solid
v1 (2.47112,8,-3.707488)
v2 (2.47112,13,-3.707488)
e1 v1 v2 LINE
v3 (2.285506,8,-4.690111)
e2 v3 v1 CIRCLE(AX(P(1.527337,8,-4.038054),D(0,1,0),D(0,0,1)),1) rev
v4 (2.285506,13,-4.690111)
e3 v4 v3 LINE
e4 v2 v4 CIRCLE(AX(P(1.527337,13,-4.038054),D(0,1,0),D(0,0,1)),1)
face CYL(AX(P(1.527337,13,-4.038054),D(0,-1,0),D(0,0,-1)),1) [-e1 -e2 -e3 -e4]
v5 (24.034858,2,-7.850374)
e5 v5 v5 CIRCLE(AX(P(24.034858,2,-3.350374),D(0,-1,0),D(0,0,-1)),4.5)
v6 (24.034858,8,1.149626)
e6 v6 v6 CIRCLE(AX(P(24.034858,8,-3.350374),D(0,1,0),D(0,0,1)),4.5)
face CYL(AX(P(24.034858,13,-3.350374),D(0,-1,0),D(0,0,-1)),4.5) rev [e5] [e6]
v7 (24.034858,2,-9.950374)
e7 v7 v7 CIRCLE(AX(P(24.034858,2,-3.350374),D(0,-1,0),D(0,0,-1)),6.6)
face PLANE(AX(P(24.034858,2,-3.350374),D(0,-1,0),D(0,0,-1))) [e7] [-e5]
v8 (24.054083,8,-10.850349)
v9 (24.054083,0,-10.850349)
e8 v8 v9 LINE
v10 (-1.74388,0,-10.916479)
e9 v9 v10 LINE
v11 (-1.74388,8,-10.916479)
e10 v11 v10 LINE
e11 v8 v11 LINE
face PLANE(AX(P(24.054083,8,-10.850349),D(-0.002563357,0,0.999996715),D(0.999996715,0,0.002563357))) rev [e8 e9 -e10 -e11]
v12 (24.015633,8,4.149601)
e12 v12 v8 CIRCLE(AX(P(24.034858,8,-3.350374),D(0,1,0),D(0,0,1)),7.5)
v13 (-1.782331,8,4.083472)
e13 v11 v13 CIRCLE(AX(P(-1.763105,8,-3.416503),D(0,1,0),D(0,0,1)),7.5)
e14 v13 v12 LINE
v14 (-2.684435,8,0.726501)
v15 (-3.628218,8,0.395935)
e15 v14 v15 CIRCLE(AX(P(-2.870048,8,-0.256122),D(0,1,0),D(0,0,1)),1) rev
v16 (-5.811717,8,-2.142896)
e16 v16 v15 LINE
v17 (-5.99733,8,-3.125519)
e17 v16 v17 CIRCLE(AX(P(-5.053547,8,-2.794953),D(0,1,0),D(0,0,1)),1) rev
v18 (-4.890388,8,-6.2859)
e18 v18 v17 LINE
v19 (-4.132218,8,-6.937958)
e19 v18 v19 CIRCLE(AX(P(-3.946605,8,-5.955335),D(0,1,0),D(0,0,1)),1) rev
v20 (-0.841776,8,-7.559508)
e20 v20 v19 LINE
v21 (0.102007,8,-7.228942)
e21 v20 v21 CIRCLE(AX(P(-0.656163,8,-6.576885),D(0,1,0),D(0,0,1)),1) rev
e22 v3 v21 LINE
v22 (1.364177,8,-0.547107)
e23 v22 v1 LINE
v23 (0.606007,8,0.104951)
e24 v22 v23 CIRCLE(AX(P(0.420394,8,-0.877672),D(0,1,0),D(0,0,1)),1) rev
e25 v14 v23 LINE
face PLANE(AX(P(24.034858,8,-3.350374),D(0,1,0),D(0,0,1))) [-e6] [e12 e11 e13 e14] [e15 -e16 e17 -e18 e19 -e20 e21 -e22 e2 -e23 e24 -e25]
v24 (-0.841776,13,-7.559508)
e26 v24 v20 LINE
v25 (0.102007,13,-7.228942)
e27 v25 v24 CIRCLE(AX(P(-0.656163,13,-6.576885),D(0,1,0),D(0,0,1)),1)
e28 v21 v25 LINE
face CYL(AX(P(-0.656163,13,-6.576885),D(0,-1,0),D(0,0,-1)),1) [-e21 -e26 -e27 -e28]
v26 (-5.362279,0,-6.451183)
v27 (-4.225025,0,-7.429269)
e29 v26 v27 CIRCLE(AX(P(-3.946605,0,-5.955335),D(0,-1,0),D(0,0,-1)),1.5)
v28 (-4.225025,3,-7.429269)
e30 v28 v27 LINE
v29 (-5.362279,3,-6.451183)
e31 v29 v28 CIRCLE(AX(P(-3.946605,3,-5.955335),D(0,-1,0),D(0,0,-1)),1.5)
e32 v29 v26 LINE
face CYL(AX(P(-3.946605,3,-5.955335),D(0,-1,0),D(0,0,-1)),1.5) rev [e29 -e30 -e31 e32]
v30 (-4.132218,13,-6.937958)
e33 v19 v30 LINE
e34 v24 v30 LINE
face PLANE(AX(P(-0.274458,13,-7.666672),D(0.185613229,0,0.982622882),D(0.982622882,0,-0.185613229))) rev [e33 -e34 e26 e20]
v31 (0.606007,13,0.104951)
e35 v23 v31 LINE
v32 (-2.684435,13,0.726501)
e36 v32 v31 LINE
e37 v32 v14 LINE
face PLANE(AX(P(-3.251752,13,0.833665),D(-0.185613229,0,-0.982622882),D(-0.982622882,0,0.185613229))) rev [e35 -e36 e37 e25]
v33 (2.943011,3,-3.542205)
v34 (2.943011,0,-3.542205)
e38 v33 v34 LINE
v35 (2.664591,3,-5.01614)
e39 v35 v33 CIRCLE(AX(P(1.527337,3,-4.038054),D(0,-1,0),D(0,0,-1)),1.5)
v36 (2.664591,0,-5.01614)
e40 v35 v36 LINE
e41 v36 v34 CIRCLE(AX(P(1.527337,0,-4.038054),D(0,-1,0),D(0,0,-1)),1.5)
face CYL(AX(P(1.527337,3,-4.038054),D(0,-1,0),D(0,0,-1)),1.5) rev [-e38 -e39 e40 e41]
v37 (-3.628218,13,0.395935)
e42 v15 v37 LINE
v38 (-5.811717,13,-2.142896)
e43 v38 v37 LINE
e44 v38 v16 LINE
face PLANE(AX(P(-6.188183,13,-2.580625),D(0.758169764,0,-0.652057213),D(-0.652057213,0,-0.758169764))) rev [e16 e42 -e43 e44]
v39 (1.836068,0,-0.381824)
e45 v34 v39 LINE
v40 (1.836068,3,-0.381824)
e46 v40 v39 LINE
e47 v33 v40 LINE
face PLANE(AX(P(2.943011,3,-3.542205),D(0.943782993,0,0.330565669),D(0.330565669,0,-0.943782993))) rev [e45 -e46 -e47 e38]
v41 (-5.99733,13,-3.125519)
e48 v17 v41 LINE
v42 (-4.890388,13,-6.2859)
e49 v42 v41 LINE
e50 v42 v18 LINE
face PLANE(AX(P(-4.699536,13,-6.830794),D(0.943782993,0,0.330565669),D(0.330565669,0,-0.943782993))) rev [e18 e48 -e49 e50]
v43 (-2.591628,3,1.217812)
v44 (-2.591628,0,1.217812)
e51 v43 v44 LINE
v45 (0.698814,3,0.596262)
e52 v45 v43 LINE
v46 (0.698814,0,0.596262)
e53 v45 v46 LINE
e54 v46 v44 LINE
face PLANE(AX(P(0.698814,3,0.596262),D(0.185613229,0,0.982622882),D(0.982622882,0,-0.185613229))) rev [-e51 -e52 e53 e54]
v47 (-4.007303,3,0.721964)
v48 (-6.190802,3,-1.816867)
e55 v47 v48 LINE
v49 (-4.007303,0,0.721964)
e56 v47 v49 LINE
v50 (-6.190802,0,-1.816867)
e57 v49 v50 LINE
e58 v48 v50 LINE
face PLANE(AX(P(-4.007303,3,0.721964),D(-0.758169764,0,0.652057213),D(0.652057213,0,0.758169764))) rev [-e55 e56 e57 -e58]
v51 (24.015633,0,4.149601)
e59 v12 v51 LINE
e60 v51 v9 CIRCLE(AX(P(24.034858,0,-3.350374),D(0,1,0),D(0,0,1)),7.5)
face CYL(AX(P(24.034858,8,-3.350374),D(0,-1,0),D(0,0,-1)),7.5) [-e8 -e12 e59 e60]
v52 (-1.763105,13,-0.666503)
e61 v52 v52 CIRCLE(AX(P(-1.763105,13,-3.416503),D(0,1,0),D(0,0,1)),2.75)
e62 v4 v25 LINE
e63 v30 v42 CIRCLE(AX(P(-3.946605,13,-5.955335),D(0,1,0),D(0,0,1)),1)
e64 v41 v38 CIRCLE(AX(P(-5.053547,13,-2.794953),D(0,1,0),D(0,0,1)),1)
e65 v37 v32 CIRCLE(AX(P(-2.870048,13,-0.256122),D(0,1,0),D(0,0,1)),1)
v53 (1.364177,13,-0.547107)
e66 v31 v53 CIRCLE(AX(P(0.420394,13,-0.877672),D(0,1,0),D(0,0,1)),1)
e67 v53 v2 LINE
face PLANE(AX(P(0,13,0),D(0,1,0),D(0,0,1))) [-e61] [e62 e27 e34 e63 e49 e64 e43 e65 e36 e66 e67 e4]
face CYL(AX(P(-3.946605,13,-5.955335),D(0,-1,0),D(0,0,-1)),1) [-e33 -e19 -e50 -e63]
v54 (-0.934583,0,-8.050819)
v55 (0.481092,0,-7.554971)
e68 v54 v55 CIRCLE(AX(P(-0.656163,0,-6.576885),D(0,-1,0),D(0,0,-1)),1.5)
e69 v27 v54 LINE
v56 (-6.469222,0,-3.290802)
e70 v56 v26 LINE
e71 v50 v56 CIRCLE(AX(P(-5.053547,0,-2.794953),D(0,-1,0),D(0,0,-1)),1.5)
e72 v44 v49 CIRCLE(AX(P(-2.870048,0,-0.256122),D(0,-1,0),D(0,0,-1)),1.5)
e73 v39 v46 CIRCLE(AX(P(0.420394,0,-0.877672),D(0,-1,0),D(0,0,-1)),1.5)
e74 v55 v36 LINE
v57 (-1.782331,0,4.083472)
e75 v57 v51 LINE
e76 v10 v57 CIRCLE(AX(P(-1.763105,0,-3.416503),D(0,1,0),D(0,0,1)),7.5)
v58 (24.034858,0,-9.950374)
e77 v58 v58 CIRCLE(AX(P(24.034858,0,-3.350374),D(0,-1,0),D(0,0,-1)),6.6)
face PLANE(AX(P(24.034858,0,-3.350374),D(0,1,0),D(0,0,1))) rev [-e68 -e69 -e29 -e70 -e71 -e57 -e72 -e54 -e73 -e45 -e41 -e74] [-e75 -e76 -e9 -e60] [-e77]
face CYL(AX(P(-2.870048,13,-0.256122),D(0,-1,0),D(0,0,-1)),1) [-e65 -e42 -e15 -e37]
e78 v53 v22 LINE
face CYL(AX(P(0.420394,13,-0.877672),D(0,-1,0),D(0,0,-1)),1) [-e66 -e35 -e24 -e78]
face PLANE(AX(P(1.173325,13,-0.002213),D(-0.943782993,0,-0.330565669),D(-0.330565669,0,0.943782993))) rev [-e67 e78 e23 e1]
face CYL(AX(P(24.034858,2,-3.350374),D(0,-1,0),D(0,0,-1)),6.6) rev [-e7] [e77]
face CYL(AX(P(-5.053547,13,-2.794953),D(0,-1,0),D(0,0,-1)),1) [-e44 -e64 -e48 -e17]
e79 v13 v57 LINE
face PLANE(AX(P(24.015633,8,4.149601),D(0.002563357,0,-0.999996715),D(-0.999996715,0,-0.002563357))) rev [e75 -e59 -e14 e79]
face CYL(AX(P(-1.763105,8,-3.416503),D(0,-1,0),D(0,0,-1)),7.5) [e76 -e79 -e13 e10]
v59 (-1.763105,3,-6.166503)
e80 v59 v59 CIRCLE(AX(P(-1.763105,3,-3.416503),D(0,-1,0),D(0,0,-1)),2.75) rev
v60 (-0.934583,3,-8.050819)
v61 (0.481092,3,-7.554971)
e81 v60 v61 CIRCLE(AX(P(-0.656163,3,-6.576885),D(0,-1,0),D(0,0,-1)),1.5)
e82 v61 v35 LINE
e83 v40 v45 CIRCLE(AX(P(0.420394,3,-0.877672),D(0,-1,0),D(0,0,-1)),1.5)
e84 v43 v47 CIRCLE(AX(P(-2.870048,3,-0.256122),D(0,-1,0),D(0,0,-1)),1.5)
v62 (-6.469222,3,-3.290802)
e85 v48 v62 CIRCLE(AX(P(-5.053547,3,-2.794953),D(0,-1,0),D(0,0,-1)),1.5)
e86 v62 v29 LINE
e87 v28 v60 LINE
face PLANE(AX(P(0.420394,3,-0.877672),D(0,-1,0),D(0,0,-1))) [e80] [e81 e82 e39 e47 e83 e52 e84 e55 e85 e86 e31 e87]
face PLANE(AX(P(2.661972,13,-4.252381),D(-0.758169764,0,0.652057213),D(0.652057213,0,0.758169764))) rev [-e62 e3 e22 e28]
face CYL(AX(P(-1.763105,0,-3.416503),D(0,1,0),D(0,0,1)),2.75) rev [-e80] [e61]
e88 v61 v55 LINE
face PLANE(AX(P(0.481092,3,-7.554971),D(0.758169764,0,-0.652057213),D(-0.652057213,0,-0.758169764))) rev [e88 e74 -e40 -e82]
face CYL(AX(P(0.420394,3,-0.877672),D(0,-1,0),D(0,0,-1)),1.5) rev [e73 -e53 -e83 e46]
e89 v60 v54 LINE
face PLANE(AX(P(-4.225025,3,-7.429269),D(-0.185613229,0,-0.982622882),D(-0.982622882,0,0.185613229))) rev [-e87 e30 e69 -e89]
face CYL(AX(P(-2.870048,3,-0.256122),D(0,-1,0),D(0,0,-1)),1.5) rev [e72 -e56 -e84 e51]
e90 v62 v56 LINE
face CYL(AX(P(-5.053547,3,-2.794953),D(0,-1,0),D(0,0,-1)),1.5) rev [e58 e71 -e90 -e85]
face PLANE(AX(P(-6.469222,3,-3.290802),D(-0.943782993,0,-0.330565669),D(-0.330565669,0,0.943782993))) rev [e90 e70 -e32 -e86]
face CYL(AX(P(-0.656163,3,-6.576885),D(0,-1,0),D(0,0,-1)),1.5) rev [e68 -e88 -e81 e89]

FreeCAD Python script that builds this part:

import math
import FreeCAD as App
import Part
import Sketcher

V = App.Vector


def edges_at(feature, points):
    """Names of the edges that pass closest to the given points."""
    edges = feature.Shape.Edges
    near = lambda p: min(range(len(edges)), key=lambda i: edges[i].distToShape(Part.Vertex(*p))[0])
    return sorted({f"Edge{near(p) + 1}" for p in points})

doc = App.newDocument("Part")
body = doc.addObject("PartDesign::Body", "Body")

# Sketch on XZ plane
sketch1 = doc.addObject("Sketcher::SketchObject", "Sketch")
body.addObject(sketch1)
sketch1.AttachmentSupport = (doc.XZ_Plane, [""])
sketch1.MapMode = "FlatFace"
sketch1.addGeometry([
    Part.LineSegment(V(-1.782331, 4.083472, 0), V(24.015633, 4.149601, 0)),
    Part.ArcOfCircle(Part.Circle(V(24.034858, -3.350374, 0), V(0, 0, 1), 7.5), math.radians(-89.85313), math.radians(90.14687)),
    Part.LineSegment(V(24.054083, -10.850349, 0), V(-1.74388, -10.916479, 0)),
    Part.ArcOfCircle(Part.Circle(V(-1.763105, -3.416503, 0), V(0, 0, 1), 7.5), math.radians(90.14687), math.radians(270.14687)),
], False)
sketch1.addConstraint([
    Sketcher.Constraint("Tangent", 0, 2, 1, 2),
    Sketcher.Constraint("Tangent", 1, 1, 2, 1),
    Sketcher.Constraint("Tangent", 2, 2, 3, 2),
    Sketcher.Constraint("Tangent", 3, 1, 0, 1),
    Sketcher.Constraint("Equal", 1, 3),
    Sketcher.Constraint("Radius", 1, 7.5),
    Sketcher.Constraint("DistanceY", -1, 1, 0, 2, 4.149601),
    Sketcher.Constraint("DistanceX", 2, 2, -1, 1, 1.74388),
    Sketcher.Constraint("DistanceY", 2, 2, -1, 1, 10.916479),
    Sketcher.Constraint("DistanceX", 3, 3, 0, 2, 25.778738),
])
pad1 = doc.addObject("PartDesign::Pad", "Pad")
body.addObject(pad1)
pad1.Profile = sketch1
pad1.Length = 8
pad1.Reversed = True

# Sketch on XZ plane
sketch2 = doc.addObject("Sketcher::SketchObject", "Sketch001")
body.addObject(sketch2)
sketch2.AttachmentSupport = (doc.XZ_Plane, [""])
sketch2.MapMode = "FlatFace"
sketch2.AttachmentOffset = App.Placement(V(0, 0, -8), App.Rotation())
sketch2.addGeometry([
    Part.LineSegment(V(-3.251752, 0.833665, 0), V(1.173325, -0.002213, 0)),  # 0
    Part.LineSegment(V(1.173325, -0.002213, 0), V(2.661972, -4.252381, 0)),  # 1
    Part.LineSegment(V(2.661972, -4.252381, 0), V(-0.274458, -7.666672, 0)),  # 2
    Part.LineSegment(V(-0.274458, -7.666672, 0), V(-4.699536, -6.830794, 0)),  # 3
    Part.LineSegment(V(-4.699536, -6.830794, 0), V(-6.188183, -2.580625, 0)),  # 4
    Part.LineSegment(V(-6.188183, -2.580625, 0), V(-3.251752, 0.833665, 0)),  # 5
], False)
sketch2.addConstraint([
    Sketcher.Constraint("Coincident", 0, 2, 1, 1),
    Sketcher.Constraint("Coincident", 1, 2, 2, 1),
    Sketcher.Constraint("Coincident", 2, 2, 3, 1),
    Sketcher.Constraint("Coincident", 3, 2, 4, 1),
    Sketcher.Constraint("Coincident", 4, 2, 5, 1),
    Sketcher.Constraint("Coincident", 5, 2, 0, 1),
    Sketcher.Constraint("Parallel", 0, 3),
    Sketcher.Constraint("Parallel", 1, 4),
    Sketcher.Constraint("Parallel", 2, 5),
    Sketcher.Constraint("Equal", 0, 1),
    Sketcher.Constraint("Equal", 1, 2),
    Sketcher.Constraint("Equal", 2, 3),
    Sketcher.Constraint("DistanceX", -1, 1, 1, 2, 2.661972),
    Sketcher.Constraint("DistanceY", 1, 2, -1, 1, 4.252381),
    Sketcher.Constraint("DistanceX", 2, 2, -1, 1, 0.274458),
    Sketcher.Constraint("DistanceY", 2, 2, -1, 1, 7.666672),
    Sketcher.Constraint("DistanceY", 1, 2, 0, 2, 4.250168),
    Sketcher.Constraint("DistanceY", 2, 2, 3, 2, 0.835878),
])
pad2 = doc.addObject("PartDesign::Pad", "Pad001")
body.addObject(pad2)
pad2.Profile = sketch2
pad2.Length = 5
pad2.Reversed = True

# Sketch on XZ plane
sketch3 = doc.addObject("Sketcher::SketchObject", "Sketch002")
body.addObject(sketch3)
sketch3.AttachmentSupport = (doc.XZ_Plane, [""])
sketch3.MapMode = "FlatFace"
sketch3.AttachmentOffset = App.Placement(V(0, 0, -13), App.Rotation())
sketch3.addGeometry(Part.Circle(V(-1.763105, -3.416503, 0), V(0, 0, 1), 2.75), False)
sketch3.addConstraint([
    Sketcher.Constraint("Diameter", 0, 5.5),
    Sketcher.Constraint("DistanceX", 0, 3, -1, 1, 1.763105),
    Sketcher.Constraint("DistanceY", 0, 3, -1, 1, 3.416503),
])
pocket1 = doc.addObject("PartDesign::Pocket", "Pocket")
body.addObject(pocket1)
pocket1.Profile = sketch3
pocket1.Type = "ThroughAll"
pocket1.Reversed = True
doc.recompute()

fillet = doc.addObject("PartDesign::Fillet", "Fillet")
body.addObject(fillet)
fillet.Base = (pocket1, edges_at(pocket1, [
    (-6.188, 10.5, -2.581),
    (-3.252, 10.5, 0.834),
    (1.173, 10.5, -0.002),
    (2.662, 10.5, -4.252),
    (-0.274, 10.5, -7.667),
    (-4.7, 10.5, -6.831),
]))
fillet.Radius = 1

# Sketch on XZ plane
sketch4 = doc.addObject("Sketcher::SketchObject", "Sketch003")
body.addObject(sketch4)
sketch4.AttachmentSupport = (doc.XZ_Plane, [""])
sketch4.MapMode = "FlatFace"
sketch4.addGeometry([
    Part.LineSegment(V(2.943011, -3.542205, 0), V(1.836068, -0.381824, 0)),  # 0
    Part.ArcOfCircle(Part.Circle(V(0.420394, -0.877672, 0), V(0, 0, 1), 1.5), math.radians(19.303113), math.radians(79.303113)),  # 1
    Part.LineSegment(V(0.698814, 0.596262, 0), V(-2.591628, 1.217812, 0)),  # 2
    Part.ArcOfCircle(Part.Circle(V(-2.870048, -0.256122, 0), V(0, 0, 1), 1.5), math.radians(79.303113), math.radians(139.303113)),  # 3
    Part.LineSegment(V(-4.007303, 0.721964, 0), V(-6.190802, -1.816867, 0)),  # 4
    Part.ArcOfCircle(Part.Circle(V(-5.053547, -2.794953, 0), V(0, 0, 1), 1.5), math.radians(139.303113), math.radians(199.303113)),  # 5
    Part.LineSegment(V(-6.469222, -3.290802, 0), V(-5.362279, -6.451183, 0)),  # 6
    Part.ArcOfCircle(Part.Circle(V(-3.946605, -5.955335, 0), V(0, 0, 1), 1.5), math.radians(-160.696887), math.radians(-100.696887)),  # 7
    Part.LineSegment(V(-4.225025, -7.429269, 0), V(-0.934583, -8.050819, 0)),  # 8
    Part.ArcOfCircle(Part.Circle(V(-0.656163, -6.576885, 0), V(0, 0, 1), 1.5), math.radians(-100.696887), math.radians(-40.696887)),  # 9
    Part.LineSegment(V(0.481092, -7.554971, 0), V(2.664591, -5.01614, 0)),  # 10
    Part.ArcOfCircle(Part.Circle(V(1.527337, -4.038054, 0), V(0, 0, 1), 1.5), math.radians(-40.696887), math.radians(19.303113)),  # 11
], False)
sketch4.addConstraint([
    Sketcher.Constraint("Tangent", 0, 2, 1, 1),
    Sketcher.Constraint("Tangent", 1, 2, 2, 1),
    Sketcher.Constraint("Tangent", 2, 2, 3, 1),
    Sketcher.Constraint("Tangent", 3, 2, 4, 1),
    Sketcher.Constraint("Tangent", 4, 2, 5, 1),
    Sketcher.Constraint("Tangent", 5, 2, 6, 1),
    Sketcher.Constraint("Tangent", 6, 2, 7, 1),
    Sketcher.Constraint("Tangent", 7, 2, 8, 1),
    Sketcher.Constraint("Tangent", 8, 2, 9, 1),
    Sketcher.Constraint("Tangent", 9, 2, 10, 1),
    Sketcher.Constraint("Tangent", 10, 2, 11, 1),
    Sketcher.Constraint("Tangent", 11, 2, 0, 1),
    Sketcher.Constraint("Equal", 1, 3),
    Sketcher.Constraint("Equal", 3, 5),
    Sketcher.Constraint("Equal", 5, 7),
    Sketcher.Constraint("Equal", 7, 9),
    Sketcher.Constraint("Equal", 9, 11),
    Sketcher.Constraint("Parallel", 0, 6),
    Sketcher.Constraint("Parallel", 2, 8),
    Sketcher.Constraint("Parallel", 4, 10),
    Sketcher.Constraint("Equal", 0, 2),
    Sketcher.Constraint("Equal", 2, 4),
    Sketcher.Constraint("Equal", 4, 6),
    Sketcher.Constraint("Radius", 1, 1.5),
    Sketcher.Constraint("DistanceX", 7, 3, 1, 3, 4.366999),
    Sketcher.Constraint("DistanceY", 5, 2, -1, 1, 3.290802),
    Sketcher.Constraint("DistanceX", 5, 3, 3, 3, 2.183499),
    Sketcher.Constraint("DistanceY", 11, 3, 5, 3, 1.243101),
    Sketcher.Constraint("DistanceY", 0, 2, 3, 3, 0.125702),
    Sketcher.Constraint("DistanceX", 3, 3, -1, 1, 2.870048),
])
pocket2 = doc.addObject("PartDesign::Pocket", "Pocket001")
body.addObject(pocket2)
pocket2.Profile = sketch4
pocket2.Length = 3

# Sketch on XZ plane
sketch5 = doc.addObject("Sketcher::SketchObject", "Sketch004")
body.addObject(sketch5)
sketch5.AttachmentSupport = (doc.XZ_Plane, [""])
sketch5.MapMode = "FlatFace"
sketch5.addGeometry(Part.Circle(V(24.034858, -3.350374, 0), V(0, 0, 1), 6.6), False)
sketch5.addConstraint([
    Sketcher.Constraint("Diameter", 0, 13.2),
    Sketcher.Constraint("DistanceX", -1, 1, 0, 3, 24.034858),
    Sketcher.Constraint("DistanceY", 0, 3, -1, 1, 3.350374),
])
pocket3 = doc.addObject("PartDesign::Pocket", "Pocket002")
body.addObject(pocket3)
pocket3.Profile = sketch5
pocket3.Length = 2

# Sketch on XZ plane
sketch6 = doc.addObject("Sketcher::SketchObject", "Sketch005")
body.addObject(sketch6)
sketch6.AttachmentSupport = (doc.XZ_Plane, [""])
sketch6.MapMode = "FlatFace"
sketch6.AttachmentOffset = App.Placement(V(0, 0, -2), App.Rotation())
sketch6.addGeometry(Part.Circle(V(24.034858, -3.350374, 0), V(0, 0, 1), 4.5), False)
sketch6.addConstraint([
    Sketcher.Constraint("Diameter", 0, 9.0),
    Sketcher.Constraint("DistanceX", -1, 1, 0, 3, 24.034858),
    Sketcher.Constraint("DistanceY", 0, 3, -1, 1, 3.350374),
])
pocket4 = doc.addObject("PartDesign::Pocket", "Pocket003")
body.addObject(pocket4)
pocket4.Profile = sketch6
pocket4.Type = "ThroughAll"

doc.recompute()
